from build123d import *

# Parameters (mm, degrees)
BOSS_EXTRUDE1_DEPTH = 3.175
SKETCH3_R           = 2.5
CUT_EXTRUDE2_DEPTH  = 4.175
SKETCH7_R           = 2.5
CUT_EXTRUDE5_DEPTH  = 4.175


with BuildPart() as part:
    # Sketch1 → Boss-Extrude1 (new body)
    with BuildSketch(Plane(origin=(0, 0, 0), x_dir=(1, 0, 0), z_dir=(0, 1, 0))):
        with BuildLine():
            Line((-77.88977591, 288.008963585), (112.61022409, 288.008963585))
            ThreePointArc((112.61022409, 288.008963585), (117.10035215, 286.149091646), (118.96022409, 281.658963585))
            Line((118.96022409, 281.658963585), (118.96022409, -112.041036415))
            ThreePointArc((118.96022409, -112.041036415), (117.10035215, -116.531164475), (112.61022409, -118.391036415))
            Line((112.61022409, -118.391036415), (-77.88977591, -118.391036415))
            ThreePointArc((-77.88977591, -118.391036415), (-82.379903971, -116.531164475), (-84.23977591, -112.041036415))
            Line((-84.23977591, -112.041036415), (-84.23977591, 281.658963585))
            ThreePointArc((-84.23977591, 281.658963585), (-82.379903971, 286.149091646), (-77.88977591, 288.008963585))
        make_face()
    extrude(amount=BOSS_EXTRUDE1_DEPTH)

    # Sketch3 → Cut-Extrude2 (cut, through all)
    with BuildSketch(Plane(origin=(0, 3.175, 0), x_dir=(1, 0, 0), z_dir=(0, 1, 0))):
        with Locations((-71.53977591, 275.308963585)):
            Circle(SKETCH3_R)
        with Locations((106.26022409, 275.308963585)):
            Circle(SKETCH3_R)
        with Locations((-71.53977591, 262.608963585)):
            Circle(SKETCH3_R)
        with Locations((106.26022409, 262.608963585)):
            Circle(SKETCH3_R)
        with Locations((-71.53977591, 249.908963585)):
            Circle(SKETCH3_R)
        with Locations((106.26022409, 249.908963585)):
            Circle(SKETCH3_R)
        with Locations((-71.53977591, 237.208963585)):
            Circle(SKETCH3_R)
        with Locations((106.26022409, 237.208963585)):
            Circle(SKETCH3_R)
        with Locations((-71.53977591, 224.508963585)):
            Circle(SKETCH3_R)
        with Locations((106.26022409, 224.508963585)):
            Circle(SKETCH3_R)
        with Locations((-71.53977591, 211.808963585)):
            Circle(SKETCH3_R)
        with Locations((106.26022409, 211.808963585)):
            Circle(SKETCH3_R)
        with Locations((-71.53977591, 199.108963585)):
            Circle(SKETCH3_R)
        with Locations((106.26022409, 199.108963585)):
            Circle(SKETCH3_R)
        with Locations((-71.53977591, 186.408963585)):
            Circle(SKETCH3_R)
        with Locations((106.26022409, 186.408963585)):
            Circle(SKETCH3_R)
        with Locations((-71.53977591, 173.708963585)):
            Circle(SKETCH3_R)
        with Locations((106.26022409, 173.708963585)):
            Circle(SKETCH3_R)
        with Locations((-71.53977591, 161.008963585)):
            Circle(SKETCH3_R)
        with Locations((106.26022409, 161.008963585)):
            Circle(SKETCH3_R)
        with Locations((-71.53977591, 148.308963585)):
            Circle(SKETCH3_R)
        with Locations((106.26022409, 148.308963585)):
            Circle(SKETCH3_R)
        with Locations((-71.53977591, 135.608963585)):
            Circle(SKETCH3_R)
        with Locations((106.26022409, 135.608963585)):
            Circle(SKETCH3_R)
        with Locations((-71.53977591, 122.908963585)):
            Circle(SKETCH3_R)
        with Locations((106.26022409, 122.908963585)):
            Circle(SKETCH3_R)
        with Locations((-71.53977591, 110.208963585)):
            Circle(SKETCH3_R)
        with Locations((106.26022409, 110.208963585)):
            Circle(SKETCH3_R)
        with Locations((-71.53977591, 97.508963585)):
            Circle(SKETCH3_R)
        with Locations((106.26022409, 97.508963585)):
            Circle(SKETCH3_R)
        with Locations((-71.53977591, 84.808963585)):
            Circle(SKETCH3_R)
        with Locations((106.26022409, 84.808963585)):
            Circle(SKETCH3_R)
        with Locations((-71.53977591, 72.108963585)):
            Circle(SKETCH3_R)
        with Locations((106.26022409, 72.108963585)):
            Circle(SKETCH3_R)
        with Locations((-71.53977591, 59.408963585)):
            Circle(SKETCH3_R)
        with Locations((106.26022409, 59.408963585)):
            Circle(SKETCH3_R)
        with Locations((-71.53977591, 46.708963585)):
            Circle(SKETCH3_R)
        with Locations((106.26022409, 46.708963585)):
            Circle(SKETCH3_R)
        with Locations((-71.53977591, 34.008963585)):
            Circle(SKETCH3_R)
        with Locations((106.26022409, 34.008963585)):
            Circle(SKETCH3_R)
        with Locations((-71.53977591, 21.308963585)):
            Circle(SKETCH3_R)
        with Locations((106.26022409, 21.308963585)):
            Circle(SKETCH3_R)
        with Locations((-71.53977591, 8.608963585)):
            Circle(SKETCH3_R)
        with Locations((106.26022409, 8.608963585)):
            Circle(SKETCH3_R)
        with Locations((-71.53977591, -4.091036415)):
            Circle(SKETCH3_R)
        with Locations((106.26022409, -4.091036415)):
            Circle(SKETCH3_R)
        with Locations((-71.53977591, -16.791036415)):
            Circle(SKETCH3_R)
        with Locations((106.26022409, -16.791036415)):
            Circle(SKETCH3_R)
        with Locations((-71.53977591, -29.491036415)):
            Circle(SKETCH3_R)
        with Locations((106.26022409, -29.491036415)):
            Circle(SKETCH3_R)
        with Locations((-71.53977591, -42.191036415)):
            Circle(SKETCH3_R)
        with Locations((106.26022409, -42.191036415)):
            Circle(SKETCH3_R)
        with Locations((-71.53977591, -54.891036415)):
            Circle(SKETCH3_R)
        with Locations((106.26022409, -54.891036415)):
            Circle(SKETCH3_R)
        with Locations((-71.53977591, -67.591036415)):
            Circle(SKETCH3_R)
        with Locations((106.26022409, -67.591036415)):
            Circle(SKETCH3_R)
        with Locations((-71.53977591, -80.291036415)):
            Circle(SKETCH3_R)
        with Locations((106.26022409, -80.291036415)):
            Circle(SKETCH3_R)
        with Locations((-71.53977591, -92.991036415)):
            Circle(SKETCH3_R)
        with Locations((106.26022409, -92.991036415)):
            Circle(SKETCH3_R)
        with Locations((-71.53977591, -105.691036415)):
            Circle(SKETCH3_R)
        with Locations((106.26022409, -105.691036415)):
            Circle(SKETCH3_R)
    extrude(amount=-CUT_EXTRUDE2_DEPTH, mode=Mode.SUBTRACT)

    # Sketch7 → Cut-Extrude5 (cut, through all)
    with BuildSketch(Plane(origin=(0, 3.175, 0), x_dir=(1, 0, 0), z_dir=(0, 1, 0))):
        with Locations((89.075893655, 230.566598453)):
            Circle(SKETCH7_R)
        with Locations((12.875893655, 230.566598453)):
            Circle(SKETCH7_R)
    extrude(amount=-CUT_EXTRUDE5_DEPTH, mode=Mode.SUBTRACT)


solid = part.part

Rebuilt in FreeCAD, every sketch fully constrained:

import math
import FreeCAD as App
import Part
import Sketcher

V = App.Vector
Q = App.Units.Quantity

doc = App.newDocument("Part")
params = doc.addObject("Spreadsheet::Sheet", "Params")
for row, (alias, value) in enumerate([
    ("sketch1_radius", "0.25 in"),
    ("sketch1_width", "7.5 in"),
    ("sketch1_height", "15.5 in"),
    ("pad1_length", "0.125 in"),
], start=1):
    params.set(f"A{row}", alias)
    params.set(f"B{row}", "=" + value)
    params.setAlias(f"B{row}", alias)

body = doc.addObject("PartDesign::Body", "Body")

sketch1 = body.newObject("Sketcher::SketchObject", "Sketch")
sketch1.AttachmentSupport = (doc.getObject("XZ_Plane"), [""])
sketch1.MapMode = "FlatFace"
sketch1.addGeometry(Part.LineSegment(V(113, -288, 0), V(-78, -288, 0)), False)
sketch1.addGeometry(Part.ArcOfCircle(Part.Circle(V(-78, -282, 0), V(0, 0, 1), 6), math.radians(180), math.radians(270)), False)
sketch1.addGeometry(Part.LineSegment(V(-84, -282, 0), V(-84, 112, 0)), False)
sketch1.addGeometry(Part.ArcOfCircle(Part.Circle(V(-78, 112, 0), V(0, 0, 1), 6), math.radians(90), math.radians(180)), False)
sketch1.addGeometry(Part.LineSegment(V(-78, 118, 0), V(113, 118, 0)), False)
sketch1.addGeometry(Part.ArcOfCircle(Part.Circle(V(113, 112, 0), V(0, 0, 1), 6), math.radians(0), math.radians(90)), False)
sketch1.addGeometry(Part.LineSegment(V(119, 112, 0), V(119, -282, 0)), False)
sketch1.addGeometry(Part.ArcOfCircle(Part.Circle(V(113, -282, 0), V(0, 0, 1), 6), math.radians(-90), math.radians(0)), False)
sketch1.addConstraint(Sketcher.Constraint("Tangent", 0, 2, 1, 2))
sketch1.addConstraint(Sketcher.Constraint("Tangent", 1, 1, 2, 1))
sketch1.addConstraint(Sketcher.Constraint("Tangent", 2, 2, 3, 2))
sketch1.addConstraint(Sketcher.Constraint("Tangent", 3, 1, 4, 1))
sketch1.addConstraint(Sketcher.Constraint("Tangent", 4, 2, 5, 2))
sketch1.addConstraint(Sketcher.Constraint("Tangent", 5, 1, 6, 1))
sketch1.addConstraint(Sketcher.Constraint("Tangent", 6, 2, 7, 2))
sketch1.addConstraint(Sketcher.Constraint("Tangent", 7, 1, 0, 1))
sketch1.addConstraint(Sketcher.Constraint("Horizontal", 0))
sketch1.addConstraint(Sketcher.Constraint("Vertical", 2))
sketch1.addConstraint(Sketcher.Constraint("Horizontal", 4))
sketch1.addConstraint(Sketcher.Constraint("Vertical", 6))
sketch1.addConstraint(Sketcher.Constraint("Equal", 1, 3))
sketch1.addConstraint(Sketcher.Constraint("Equal", 3, 5))
sketch1.addConstraint(Sketcher.Constraint("Equal", 5, 7))
sketch1.addConstraint(Sketcher.Constraint("Radius", 1, Q("0.25 in")))
sketch1.addConstraint(Sketcher.Constraint("DistanceX", 0, 2, 0, 1, Q("7.5 in")))
sketch1.addConstraint(Sketcher.Constraint("DistanceY", 2, 1, 2, 2, Q("15.5 in")))
sketch1.addConstraint(Sketcher.Constraint("DistanceX", 1, 3, -1, 1, 77.889776))
sketch1.addConstraint(Sketcher.Constraint("DistanceY", 1, 3, -1, 1, 281.658964))
sketch1.setExpression("Constraints[15]", "Params.sketch1_radius")
sketch1.setExpression("Constraints[16]", "Params.sketch1_width")
sketch1.setExpression("Constraints[17]", "Params.sketch1_height")
pad1 = body.newObject("PartDesign::Pad", "Pad")
pad1.Profile = sketch1
pad1.setExpression("Length", "Params.pad1_length")
pad1.Reversed = True

sketch2 = body.newObject("Sketcher::SketchObject", "Sketch001")
sketch2.AttachmentSupport = (doc.getObject("XZ_Plane"), [""])
sketch2.MapMode = "FlatFace"
sketch2.AttachmentOffset = App.Placement(V(0, 0, -0.125 * 25.4), App.Rotation())
sketch2.addGeometry(Part.Circle(V(-71.5, -275.3, 0), V(0, 0, 1), 2.5), False)
sketch2.addGeometry(Part.Circle(V(106.3, -275.3, 0), V(0, 0, 1), 2.5), False)
sketch2.addGeometry(Part.Circle(V(-71.5, -262.6, 0), V(0, 0, 1), 2.5), False)
sketch2.addGeometry(Part.Circle(V(106.3, -262.6, 0), V(0, 0, 1), 2.5), False)
sketch2.addGeometry(Part.Circle(V(-71.5, -249.9, 0), V(0, 0, 1), 2.5), False)
sketch2.addGeometry(Part.Circle(V(106.3, -249.9, 0), V(0, 0, 1), 2.5), False)
sketch2.addGeometry(Part.Circle(V(-71.5, -237.2, 0), V(0, 0, 1), 2.5), False)
sketch2.addGeometry(Part.Circle(V(106.3, -237.2, 0), V(0, 0, 1), 2.5), False)
sketch2.addGeometry(Part.Circle(V(-71.5, -224.5, 0), V(0, 0, 1), 2.5), False)
sketch2.addGeometry(Part.Circle(V(106.3, -224.5, 0), V(0, 0, 1), 2.5), False)
sketch2.addGeometry(Part.Circle(V(-71.5, -211.8, 0), V(0, 0, 1), 2.5), False)
sketch2.addGeometry(Part.Circle(V(106.3, -211.8, 0), V(0, 0, 1), 2.5), False)
sketch2.addGeometry(Part.Circle(V(-71.5, -199.1, 0), V(0, 0, 1), 2.5), False)
sketch2.addGeometry(Part.Circle(V(106.3, -199.1, 0), V(0, 0, 1), 2.5), False)
sketch2.addGeometry(Part.Circle(V(-71.5, -186.4, 0), V(0, 0, 1), 2.5), False)
sketch2.addGeometry(Part.Circle(V(106.3, -186.4, 0), V(0, 0, 1), 2.5), False)
sketch2.addGeometry(Part.Circle(V(-71.5, -173.7, 0), V(0, 0, 1), 2.5), False)
sketch2.addGeometry(Part.Circle(V(106.3, -173.7, 0), V(0, 0, 1), 2.5), False)
sketch2.addGeometry(Part.Circle(V(-71.5, -161, 0), V(0, 0, 1), 2.5), False)
sketch2.addGeometry(Part.Circle(V(106.3, -161, 0), V(0, 0, 1), 2.5), False)
sketch2.addGeometry(Part.Circle(V(-71.5, -148.3, 0), V(0, 0, 1), 2.5), False)
sketch2.addGeometry(Part.Circle(V(106.3, -148.3, 0), V(0, 0, 1), 2.5), False)
sketch2.addGeometry(Part.Circle(V(-71.5, -135.6, 0), V(0, 0, 1), 2.5), False)
sketch2.addGeometry(Part.Circle(V(106.3, -135.6, 0), V(0, 0, 1), 2.5), False)
sketch2.addGeometry(Part.Circle(V(-71.5, -122.9, 0), V(0, 0, 1), 2.5), False)
sketch2.addGeometry(Part.Circle(V(106.3, -122.9, 0), V(0, 0, 1), 2.5), False)
sketch2.addGeometry(Part.Circle(V(-71.5, -110.2, 0), V(0, 0, 1), 2.5), False)
sketch2.addGeometry(Part.Circle(V(106.3, -110.2, 0), V(0, 0, 1), 2.5), False)
sketch2.addGeometry(Part.Circle(V(-71.5, -97.5, 0), V(0, 0, 1), 2.5), False)
sketch2.addGeometry(Part.Circle(V(106.3, -97.5, 0), V(0, 0, 1), 2.5), False)
sketch2.addGeometry(Part.Circle(V(-71.5, -84.8, 0), V(0, 0, 1), 2.5), False)
sketch2.addGeometry(Part.Circle(V(106.3, -84.8, 0), V(0, 0, 1), 2.5), False)
sketch2.addGeometry(Part.Circle(V(-71.5, -72.1, 0), V(0, 0, 1), 2.5), False)
sketch2.addGeometry(Part.Circle(V(106.3, -72.1, 0), V(0, 0, 1), 2.5), False)
sketch2.addGeometry(Part.Circle(V(-71.5, -59.4, 0), V(0, 0, 1), 2.5), False)
sketch2.addGeometry(Part.Circle(V(106.3, -59.4, 0), V(0, 0, 1), 2.5), False)
sketch2.addGeometry(Part.Circle(V(-71.5, -46.7, 0), V(0, 0, 1), 2.5), False)
sketch2.addGeometry(Part.Circle(V(106.3, -46.7, 0), V(0, 0, 1), 2.5), False)
sketch2.addGeometry(Part.Circle(V(-71.5, -34, 0), V(0, 0, 1), 2.5), False)
sketch2.addGeometry(Part.Circle(V(106.3, -34, 0), V(0, 0, 1), 2.5), False)
sketch2.addGeometry(Part.Circle(V(-71.5, -21.3, 0), V(0, 0, 1), 2.5), False)
sketch2.addGeometry(Part.Circle(V(106.3, -21.3, 0), V(0, 0, 1), 2.5), False)
sketch2.addGeometry(Part.Circle(V(-71.5, -8.6, 0), V(0, 0, 1), 2.5), False)
sketch2.addGeometry(Part.Circle(V(106.3, -8.6, 0), V(0, 0, 1), 2.5), False)
sketch2.addGeometry(Part.Circle(V(-71.5, 4.1, 0), V(0, 0, 1), 2.5), False)
sketch2.addGeometry(Part.Circle(V(106.3, 4.1, 0), V(0, 0, 1), 2.5), False)
sketch2.addGeometry(Part.Circle(V(-71.5, 16.8, 0), V(0, 0, 1), 2.5), False)
sketch2.addGeometry(Part.Circle(V(106.3, 16.8, 0), V(0, 0, 1), 2.5), False)
sketch2.addGeometry(Part.Circle(V(-71.5, 29.5, 0), V(0, 0, 1), 2.5), False)
sketch2.addGeometry(Part.Circle(V(106.3, 29.5, 0), V(0, 0, 1), 2.5), False)
sketch2.addGeometry(Part.Circle(V(-71.5, 42.2, 0), V(0, 0, 1), 2.5), False)
sketch2.addGeometry(Part.Circle(V(106.3, 42.2, 0), V(0, 0, 1), 2.5), False)
sketch2.addGeometry(Part.Circle(V(-71.5, 54.9, 0), V(0, 0, 1), 2.5), False)
sketch2.addGeometry(Part.Circle(V(106.3, 54.9, 0), V(0, 0, 1), 2.5), False)
sketch2.addGeometry(Part.Circle(V(-71.5, 67.6, 0), V(0, 0, 1), 2.5), False)
sketch2.addGeometry(Part.Circle(V(106.3, 67.6, 0), V(0, 0, 1), 2.5), False)
sketch2.addGeometry(Part.Circle(V(-71.5, 80.3, 0), V(0, 0, 1), 2.5), False)
sketch2.addGeometry(Part.Circle(V(106.3, 80.3, 0), V(0, 0, 1), 2.5), False)
sketch2.addGeometry(Part.Circle(V(-71.5, 93, 0), V(0, 0, 1), 2.5), False)
sketch2.addGeometry(Part.Circle(V(106.3, 93, 0), V(0, 0, 1), 2.5), False)
sketch2.addGeometry(Part.Circle(V(-71.5, 105.7, 0), V(0, 0, 1), 2.5), False)
sketch2.addGeometry(Part.Circle(V(106.3, 105.7, 0), V(0, 0, 1), 2.5), False)
sketch2.addConstraint(Sketcher.Constraint("Equal", 0, 1))
sketch2.addConstraint(Sketcher.Constraint("Equal", 1, 2))
sketch2.addConstraint(Sketcher.Constraint("Equal", 2, 3))
sketch2.addConstraint(Sketcher.Constraint("Equal", 3, 4))
sketch2.addConstraint(Sketcher.Constraint("Equal", 4, 5))
sketch2.addConstraint(Sketcher.Constraint("Equal", 5, 6))
sketch2.addConstraint(Sketcher.Constraint("Equal", 6, 7))
sketch2.addConstraint(Sketcher.Constraint("Equal", 7, 8))
sketch2.addConstraint(Sketcher.Constraint("Equal", 8, 9))
sketch2.addConstraint(Sketcher.Constraint("Equal", 9, 10))
sketch2.addConstraint(Sketcher.Constraint("Equal", 10, 11))
sketch2.addConstraint(Sketcher.Constraint("Equal", 11, 12))
sketch2.addConstraint(Sketcher.Constraint("Equal", 12, 13))
sketch2.addConstraint(Sketcher.Constraint("Equal", 13, 14))
sketch2.addConstraint(Sketcher.Constraint("Equal", 14, 15))
sketch2.addConstraint(Sketcher.Constraint("Equal", 15, 16))
sketch2.addConstraint(Sketcher.Constraint("Equal", 16, 17))
sketch2.addConstraint(Sketcher.Constraint("Equal", 17, 18))
sketch2.addConstraint(Sketcher.Constraint("Equal", 18, 19))
sketch2.addConstraint(Sketcher.Constraint("Equal", 19, 20))
sketch2.addConstraint(Sketcher.Constraint("Equal", 20, 21))
sketch2.addConstraint(Sketcher.Constraint("Equal", 21, 22))
sketch2.addConstraint(Sketcher.Constraint("Equal", 22, 23))
sketch2.addConstraint(Sketcher.Constraint("Equal", 23, 24))
sketch2.addConstraint(Sketcher.Constraint("Equal", 24, 25))
sketch2.addConstraint(Sketcher.Constraint("Equal", 25, 26))
sketch2.addConstraint(Sketcher.Constraint("Equal", 26, 27))
sketch2.addConstraint(Sketcher.Constraint("Equal", 27, 28))
sketch2.addConstraint(Sketcher.Constraint("Equal", 28, 29))
sketch2.addConstraint(Sketcher.Constraint("Equal", 29, 30))
sketch2.addConstraint(Sketcher.Constraint("Equal", 30, 31))
sketch2.addConstraint(Sketcher.Constraint("Equal", 31, 32))
sketch2.addConstraint(Sketcher.Constraint("Equal", 32, 33))
sketch2.addConstraint(Sketcher.Constraint("Equal", 33, 34))
sketch2.addConstraint(Sketcher.Constraint("Equal", 34, 35))
sketch2.addConstraint(Sketcher.Constraint("Equal", 35, 36))
sketch2.addConstraint(Sketcher.Constraint("Equal", 36, 37))
sketch2.addConstraint(Sketcher.Constraint("Equal", 37, 38))
sketch2.addConstraint(Sketcher.Constraint("Equal", 38, 39))
sketch2.addConstraint(Sketcher.Constraint("Equal", 39, 40))
sketch2.addConstraint(Sketcher.Constraint("Equal", 40, 41))
sketch2.addConstraint(Sketcher.Constraint("Equal", 41, 42))
sketch2.addConstraint(Sketcher.Constraint("Equal", 42, 43))
sketch2.addConstraint(Sketcher.Constraint("Equal", 43, 44))
sketch2.addConstraint(Sketcher.Constraint("Equal", 44, 45))
sketch2.addConstraint(Sketcher.Constraint("Equal", 45, 46))
sketch2.addConstraint(Sketcher.Constraint("Equal", 46, 47))
sketch2.addConstraint(Sketcher.Constraint("Equal", 47, 48))
sketch2.addConstraint(Sketcher.Constraint("Equal", 48, 49))
sketch2.addConstraint(Sketcher.Constraint("Equal", 49, 50))
sketch2.addConstraint(Sketcher.Constraint("Equal", 50, 51))
sketch2.addConstraint(Sketcher.Constraint("Equal", 51, 52))
sketch2.addConstraint(Sketcher.Constraint("Equal", 52, 53))
sketch2.addConstraint(Sketcher.Constraint("Equal", 53, 54))
sketch2.addConstraint(Sketcher.Constraint("Equal", 54, 55))
sketch2.addConstraint(Sketcher.Constraint("Equal", 55, 56))
sketch2.addConstraint(Sketcher.Constraint("Equal", 56, 57))
sketch2.addConstraint(Sketcher.Constraint("Equal", 57, 58))
sketch2.addConstraint(Sketcher.Constraint("Equal", 58, 59))
sketch2.addConstraint(Sketcher.Constraint("Equal", 59, 60))
sketch2.addConstraint(Sketcher.Constraint("Equal", 60, 61))
sketch2.addConstraint(Sketcher.Constraint("Horizontal", 0, 3, 1, 3))
sketch2.addConstraint(Sketcher.Constraint("Horizontal", 2, 3, 3, 3))
sketch2.addConstraint(Sketcher.Constraint("Horizontal", 4, 3, 5, 3))
sketch2.addConstraint(Sketcher.Constraint("Horizontal", 6, 3, 7, 3))
sketch2.addConstraint(Sketcher.Constraint("Horizontal", 8, 3, 9, 3))
sketch2.addConstraint(Sketcher.Constraint("Horizontal", 10, 3, 11, 3))
sketch2.addConstraint(Sketcher.Constraint("Horizontal", 12, 3, 13, 3))
sketch2.addConstraint(Sketcher.Constraint("Horizontal", 14, 3, 15, 3))
sketch2.addConstraint(Sketcher.Constraint("Horizontal", 16, 3, 17, 3))
sketch2.addConstraint(Sketcher.Constraint("Horizontal", 18, 3, 19, 3))
sketch2.addConstraint(Sketcher.Constraint("Horizontal", 20, 3, 21, 3))
sketch2.addConstraint(Sketcher.Constraint("Horizontal", 22, 3, 23, 3))
sketch2.addConstraint(Sketcher.Constraint("Horizontal", 24, 3, 25, 3))
sketch2.addConstraint(Sketcher.Constraint("Horizontal", 26, 3, 27, 3))
sketch2.addConstraint(Sketcher.Constraint("Horizontal", 28, 3, 29, 3))
sketch2.addConstraint(Sketcher.Constraint("Horizontal", 30, 3, 31, 3))
sketch2.addConstraint(Sketcher.Constraint("Horizontal", 32, 3, 33, 3))
sketch2.addConstraint(Sketcher.Constraint("Horizontal", 34, 3, 35, 3))
sketch2.addConstraint(Sketcher.Constraint("Horizontal", 36, 3, 37, 3))
sketch2.addConstraint(Sketcher.Constraint("Horizontal", 38, 3, 39, 3))
sketch2.addConstraint(Sketcher.Constraint("Horizontal", 40, 3, 41, 3))
sketch2.addConstraint(Sketcher.Constraint("Horizontal", 42, 3, 43, 3))
sketch2.addConstraint(Sketcher.Constraint("Horizontal", 44, 3, 45, 3))
sketch2.addConstraint(Sketcher.Constraint("Horizontal", 46, 3, 47, 3))
sketch2.addConstraint(Sketcher.Constraint("Horizontal", 48, 3, 49, 3))
sketch2.addConstraint(Sketcher.Constraint("Horizontal", 50, 3, 51, 3))
sketch2.addConstraint(Sketcher.Constraint("Horizontal", 52, 3, 53, 3))
sketch2.addConstraint(Sketcher.Constraint("Horizontal", 54, 3, 55, 3))
sketch2.addConstraint(Sketcher.Constraint("Horizontal", 56, 3, 57, 3))
sketch2.addConstraint(Sketcher.Constraint("Horizontal", 58, 3, 59, 3))
sketch2.addConstraint(Sketcher.Constraint("Horizontal", 60, 3, 61, 3))
sketch2.addConstraint(Sketcher.Constraint("Vertical", 0, 3, 2, 3))
sketch2.addConstraint(Sketcher.Constraint("Vertical", 1, 3, 3, 3))
sketch2.addConstraint(Sketcher.Constraint("Vertical", 2, 3, 4, 3))
sketch2.addConstraint(Sketcher.Constraint("Vertical", 3, 3, 5, 3))
sketch2.addConstraint(Sketcher.Constraint("Vertical", 4, 3, 6, 3))
sketch2.addConstraint(Sketcher.Constraint("Vertical", 5, 3, 7, 3))
sketch2.addConstraint(Sketcher.Constraint("Vertical", 6, 3, 8, 3))
sketch2.addConstraint(Sketcher.Constraint("Vertical", 7, 3, 9, 3))
sketch2.addConstraint(Sketcher.Constraint("Vertical", 8, 3, 10, 3))
sketch2.addConstraint(Sketcher.Constraint("Vertical", 9, 3, 11, 3))
sketch2.addConstraint(Sketcher.Constraint("Vertical", 10, 3, 12, 3))
sketch2.addConstraint(Sketcher.Constraint("Vertical", 11, 3, 13, 3))
sketch2.addConstraint(Sketcher.Constraint("Vertical", 12, 3, 14, 3))
sketch2.addConstraint(Sketcher.Constraint("Vertical", 13, 3, 15, 3))
sketch2.addConstraint(Sketcher.Constraint("Vertical", 14, 3, 16, 3))
sketch2.addConstraint(Sketcher.Constraint("Vertical", 15, 3, 17, 3))
sketch2.addConstraint(Sketcher.Constraint("Vertical", 16, 3, 18, 3))
sketch2.addConstraint(Sketcher.Constraint("Vertical", 17, 3, 19, 3))
sketch2.addConstraint(Sketcher.Constraint("Vertical", 18, 3, 20, 3))
sketch2.addConstraint(Sketcher.Constraint("Vertical", 19, 3, 21, 3))
sketch2.addConstraint(Sketcher.Constraint("Vertical", 20, 3, 22, 3))
sketch2.addConstraint(Sketcher.Constraint("Vertical", 21, 3, 23, 3))
sketch2.addConstraint(Sketcher.Constraint("Vertical", 22, 3, 24, 3))
sketch2.addConstraint(Sketcher.Constraint("Vertical", 23, 3, 25, 3))
sketch2.addConstraint(Sketcher.Constraint("Vertical", 24, 3, 26, 3))
sketch2.addConstraint(Sketcher.Constraint("Vertical", 25, 3, 27, 3))
sketch2.addConstraint(Sketcher.Constraint("Vertical", 26, 3, 28, 3))
sketch2.addConstraint(Sketcher.Constraint("Vertical", 27, 3, 29, 3))
sketch2.addConstraint(Sketcher.Constraint("Vertical", 28, 3, 30, 3))
sketch2.addConstraint(Sketcher.Constraint("Vertical", 29, 3, 31, 3))
sketch2.addConstraint(Sketcher.Constraint("Vertical", 30, 3, 32, 3))
sketch2.addConstraint(Sketcher.Constraint("Vertical", 31, 3, 33, 3))
sketch2.addConstraint(Sketcher.Constraint("Vertical", 32, 3, 34, 3))
sketch2.addConstraint(Sketcher.Constraint("Vertical", 33, 3, 35, 3))
sketch2.addConstraint(Sketcher.Constraint("Vertical", 34, 3, 36, 3))
sketch2.addConstraint(Sketcher.Constraint("Vertical", 35, 3, 37, 3))
sketch2.addConstraint(Sketcher.Constraint("Vertical", 36, 3, 38, 3))
sketch2.addConstraint(Sketcher.Constraint("Vertical", 37, 3, 39, 3))
sketch2.addConstraint(Sketcher.Constraint("Vertical", 38, 3, 40, 3))
sketch2.addConstraint(Sketcher.Constraint("Vertical", 39, 3, 41, 3))
sketch2.addConstraint(Sketcher.Constraint("Vertical", 40, 3, 42, 3))
sketch2.addConstraint(Sketcher.Constraint("Vertical", 41, 3, 43, 3))
sketch2.addConstraint(Sketcher.Constraint("Vertical", 42, 3, 44, 3))
sketch2.addConstraint(Sketcher.Constraint("Vertical", 43, 3, 45, 3))
sketch2.addConstraint(Sketcher.Constraint("Vertical", 44, 3, 46, 3))
sketch2.addConstraint(Sketcher.Constraint("Vertical", 45, 3, 47, 3))
sketch2.addConstraint(Sketcher.Constraint("Vertical", 46, 3, 48, 3))
sketch2.addConstraint(Sketcher.Constraint("Vertical", 47, 3, 49, 3))
sketch2.addConstraint(Sketcher.Constraint("Vertical", 48, 3, 50, 3))
sketch2.addConstraint(Sketcher.Constraint("Vertical", 49, 3, 51, 3))
sketch2.addConstraint(Sketcher.Constraint("Vertical", 50, 3, 52, 3))
sketch2.addConstraint(Sketcher.Constraint("Vertical", 51, 3, 53, 3))
sketch2.addConstraint(Sketcher.Constraint("Vertical", 52, 3, 54, 3))
sketch2.addConstraint(Sketcher.Constraint("Vertical", 53, 3, 55, 3))
sketch2.addConstraint(Sketcher.Constraint("Vertical", 54, 3, 56, 3))
sketch2.addConstraint(Sketcher.Constraint("Vertical", 55, 3, 57, 3))
sketch2.addConstraint(Sketcher.Constraint("Vertical", 56, 3, 58, 3))
sketch2.addConstraint(Sketcher.Constraint("Vertical", 57, 3, 59, 3))
sketch2.addConstraint(Sketcher.Constraint("Vertical", 58, 3, 60, 3))
sketch2.addConstraint(Sketcher.Constraint("Vertical", 59, 3, 61, 3))
sketch2.addConstraint(Sketcher.Constraint("Diameter", 0, 5.0))
sketch2.addConstraint(Sketcher.Constraint("DistanceX", 0, 3, -1, 1, 71.539776))
sketch2.addConstraint(Sketcher.Constraint("DistanceY", 0, 3, -1, 1, 275.308964))
sketch2.addConstraint(Sketcher.Constraint("DistanceX", -1, 1, 1, 3, 106.260224))
sketch2.addConstraint(Sketcher.Constraint("DistanceY", 2, 3, -1, 1, 262.608964))
sketch2.addConstraint(Sketcher.Constraint("DistanceY", 4, 3, -1, 1, 249.908964))
sketch2.addConstraint(Sketcher.Constraint("DistanceY", 6, 3, -1, 1, 237.208964))
sketch2.addConstraint(Sketcher.Constraint("DistanceY", 8, 3, -1, 1, 224.508964))
sketch2.addConstraint(Sketcher.Constraint("DistanceY", 10, 3, -1, 1, 211.808964))
sketch2.addConstraint(Sketcher.Constraint("DistanceY", 12, 3, -1, 1, 199.108964))
sketch2.addConstraint(Sketcher.Constraint("DistanceY", 14, 3, -1, 1, 186.408964))
sketch2.addConstraint(Sketcher.Constraint("DistanceY", 16, 3, -1, 1, 173.708964))
sketch2.addConstraint(Sketcher.Constraint("DistanceY", 18, 3, -1, 1, 161.008964))
sketch2.addConstraint(Sketcher.Constraint("DistanceY", 20, 3, -1, 1, 148.308964))
sketch2.addConstraint(Sketcher.Constraint("DistanceY", 22, 3, -1, 1, 135.608964))
sketch2.addConstraint(Sketcher.Constraint("DistanceY", 24, 3, -1, 1, 122.908964))
sketch2.addConstraint(Sketcher.Constraint("DistanceY", 26, 3, -1, 1, 110.208964))
sketch2.addConstraint(Sketcher.Constraint("DistanceY", 28, 3, -1, 1, 97.508964))
sketch2.addConstraint(Sketcher.Constraint("DistanceY", 30, 3, -1, 1, 84.808964))
sketch2.addConstraint(Sketcher.Constraint("DistanceY", 32, 3, -1, 1, 72.108964))
sketch2.addConstraint(Sketcher.Constraint("DistanceY", 34, 3, -1, 1, 59.408964))
sketch2.addConstraint(Sketcher.Constraint("DistanceY", 36, 3, -1, 1, 46.708964))
sketch2.addConstraint(Sketcher.Constraint("DistanceY", 38, 3, -1, 1, 34.008964))
sketch2.addConstraint(Sketcher.Constraint("DistanceY", 40, 3, -1, 1, 21.308964))
sketch2.addConstraint(Sketcher.Constraint("DistanceY", 42, 3, -1, 1, 8.608964))
sketch2.addConstraint(Sketcher.Constraint("DistanceY", -1, 1, 44, 3, 4.091036))
sketch2.addConstraint(Sketcher.Constraint("DistanceY", -1, 1, 46, 3, 16.791036))
sketch2.addConstraint(Sketcher.Constraint("DistanceY", -1, 1, 48, 3, 29.491036))
sketch2.addConstraint(Sketcher.Constraint("DistanceY", -1, 1, 50, 3, 42.191036))
sketch2.addConstraint(Sketcher.Constraint("DistanceY", -1, 1, 52, 3, 54.891036))
sketch2.addConstraint(Sketcher.Constraint("DistanceY", -1, 1, 54, 3, 67.591036))
sketch2.addConstraint(Sketcher.Constraint("DistanceY", -1, 1, 56, 3, 80.291036))
sketch2.addConstraint(Sketcher.Constraint("DistanceY", -1, 1, 58, 3, 92.991036))
sketch2.addConstraint(Sketcher.Constraint("DistanceY", -1, 1, 60, 3, 105.691036))
pocket1 = body.newObject("PartDesign::Pocket", "Pocket")
pocket1.Profile = sketch2
pocket1.Type = "ThroughAll"
pocket1.Reversed = True

sketch3 = body.newObject("Sketcher::SketchObject", "Sketch002")
sketch3.AttachmentSupport = (doc.getObject("XZ_Plane"), [""])
sketch3.MapMode = "FlatFace"
sketch3.AttachmentOffset = App.Placement(V(0, 0, -0.125 * 25.4), App.Rotation())
sketch3.addGeometry(Part.Circle(V(89.1, -230.6, 0), V(0, 0, 1), 2.5), False)
sketch3.addGeometry(Part.Circle(V(12.9, -230.6, 0), V(0, 0, 1), 2.5), False)
sketch3.addConstraint(Sketcher.Constraint("Equal", 0, 1))
sketch3.addConstraint(Sketcher.Constraint("Horizontal", 0, 3, 1, 3))
sketch3.addConstraint(Sketcher.Constraint("DistanceX", 1, 3, 0, 3, Q("3 in")))
sketch3.addConstraint(Sketcher.Constraint("Diameter", 0, 5.0))
sketch3.addConstraint(Sketcher.Constraint("DistanceY", 0, 3, -1, 1, 230.566598))
sketch3.addConstraint(Sketcher.Constraint("DistanceX", -1, 1, 0, 3, 89.075894))
pocket2 = body.newObject("PartDesign::Pocket", "Pocket001")
pocket2.Profile = sketch3
pocket2.Type = "ThroughAll"
pocket2.Reversed = True

doc.recompute()
